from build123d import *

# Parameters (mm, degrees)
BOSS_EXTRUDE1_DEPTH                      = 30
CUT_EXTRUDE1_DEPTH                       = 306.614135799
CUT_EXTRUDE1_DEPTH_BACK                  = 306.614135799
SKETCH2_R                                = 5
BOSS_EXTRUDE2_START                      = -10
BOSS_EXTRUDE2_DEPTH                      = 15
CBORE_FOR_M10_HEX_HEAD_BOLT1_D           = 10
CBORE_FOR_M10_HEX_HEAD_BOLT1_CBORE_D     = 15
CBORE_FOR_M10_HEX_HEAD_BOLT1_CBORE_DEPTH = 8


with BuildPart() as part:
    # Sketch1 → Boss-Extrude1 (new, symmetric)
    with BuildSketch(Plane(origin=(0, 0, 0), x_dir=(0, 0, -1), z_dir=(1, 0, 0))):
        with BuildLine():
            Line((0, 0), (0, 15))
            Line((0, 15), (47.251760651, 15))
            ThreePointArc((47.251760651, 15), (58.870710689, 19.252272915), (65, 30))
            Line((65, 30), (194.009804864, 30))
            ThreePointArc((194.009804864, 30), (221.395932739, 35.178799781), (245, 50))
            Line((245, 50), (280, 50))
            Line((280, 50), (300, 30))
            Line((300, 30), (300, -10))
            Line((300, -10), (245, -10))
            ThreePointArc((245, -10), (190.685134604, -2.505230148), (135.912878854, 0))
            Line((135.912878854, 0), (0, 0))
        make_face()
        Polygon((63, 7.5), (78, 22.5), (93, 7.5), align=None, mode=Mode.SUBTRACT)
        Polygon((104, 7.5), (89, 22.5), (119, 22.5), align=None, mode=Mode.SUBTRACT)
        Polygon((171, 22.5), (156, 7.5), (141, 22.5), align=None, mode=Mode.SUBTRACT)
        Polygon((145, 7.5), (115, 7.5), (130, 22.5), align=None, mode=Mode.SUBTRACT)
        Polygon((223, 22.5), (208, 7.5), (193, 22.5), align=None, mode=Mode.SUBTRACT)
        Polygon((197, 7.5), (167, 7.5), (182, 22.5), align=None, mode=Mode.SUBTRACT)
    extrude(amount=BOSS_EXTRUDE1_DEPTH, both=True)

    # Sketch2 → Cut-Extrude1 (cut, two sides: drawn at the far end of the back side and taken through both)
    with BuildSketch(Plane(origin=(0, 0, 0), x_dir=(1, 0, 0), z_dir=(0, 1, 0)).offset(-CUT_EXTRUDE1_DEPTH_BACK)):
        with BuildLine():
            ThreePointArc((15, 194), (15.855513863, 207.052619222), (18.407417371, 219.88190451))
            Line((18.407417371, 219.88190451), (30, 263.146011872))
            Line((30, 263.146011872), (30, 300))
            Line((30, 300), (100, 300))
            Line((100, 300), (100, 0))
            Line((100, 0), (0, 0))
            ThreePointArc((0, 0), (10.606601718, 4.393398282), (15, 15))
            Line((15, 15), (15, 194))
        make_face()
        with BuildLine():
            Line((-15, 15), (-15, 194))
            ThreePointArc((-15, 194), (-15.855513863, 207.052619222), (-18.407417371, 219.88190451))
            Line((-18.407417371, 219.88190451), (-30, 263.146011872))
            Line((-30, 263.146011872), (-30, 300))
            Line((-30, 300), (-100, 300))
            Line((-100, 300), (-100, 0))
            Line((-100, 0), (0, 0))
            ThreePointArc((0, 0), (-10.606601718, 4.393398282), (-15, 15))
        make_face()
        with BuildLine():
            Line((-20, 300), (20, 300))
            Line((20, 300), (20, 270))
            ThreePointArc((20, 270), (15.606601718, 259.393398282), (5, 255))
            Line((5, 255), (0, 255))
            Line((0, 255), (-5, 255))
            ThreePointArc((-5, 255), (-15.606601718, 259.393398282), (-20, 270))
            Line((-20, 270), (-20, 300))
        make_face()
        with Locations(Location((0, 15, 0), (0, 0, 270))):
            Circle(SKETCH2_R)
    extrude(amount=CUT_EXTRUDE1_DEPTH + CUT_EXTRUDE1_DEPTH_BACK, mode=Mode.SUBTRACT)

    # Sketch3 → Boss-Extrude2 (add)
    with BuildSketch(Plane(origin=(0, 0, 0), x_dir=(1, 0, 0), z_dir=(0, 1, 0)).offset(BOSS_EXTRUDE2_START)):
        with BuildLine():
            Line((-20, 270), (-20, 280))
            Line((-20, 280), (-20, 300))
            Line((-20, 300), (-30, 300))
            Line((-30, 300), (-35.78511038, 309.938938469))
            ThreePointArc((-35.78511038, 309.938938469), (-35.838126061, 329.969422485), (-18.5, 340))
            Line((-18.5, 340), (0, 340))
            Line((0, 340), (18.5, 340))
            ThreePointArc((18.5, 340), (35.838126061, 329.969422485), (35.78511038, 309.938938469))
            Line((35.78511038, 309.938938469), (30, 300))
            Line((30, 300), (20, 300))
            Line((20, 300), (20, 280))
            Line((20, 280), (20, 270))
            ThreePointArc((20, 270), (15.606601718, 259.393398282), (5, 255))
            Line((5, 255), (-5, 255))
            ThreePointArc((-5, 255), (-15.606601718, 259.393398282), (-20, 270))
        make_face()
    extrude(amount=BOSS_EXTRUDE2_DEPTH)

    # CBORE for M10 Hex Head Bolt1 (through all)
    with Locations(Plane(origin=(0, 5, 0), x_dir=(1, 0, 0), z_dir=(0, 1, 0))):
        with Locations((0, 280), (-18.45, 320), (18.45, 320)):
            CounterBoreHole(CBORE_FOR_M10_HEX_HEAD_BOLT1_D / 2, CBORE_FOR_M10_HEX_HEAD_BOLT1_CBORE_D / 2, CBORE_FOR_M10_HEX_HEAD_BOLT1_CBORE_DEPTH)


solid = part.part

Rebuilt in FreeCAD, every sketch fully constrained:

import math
import FreeCAD as App
import Part
import Sketcher

V = App.Vector
Q = App.Units.Quantity

doc = App.newDocument("Part")
body = doc.addObject("PartDesign::Body", "Body")

# Sketch on YZ plane
sketch1 = body.newObject("Sketcher::SketchObject", "Sketch")
sketch1.AttachmentSupport = (doc.getObject("YZ_Plane"), [""])
sketch1.MapMode = "FlatFace"
sketch1.addGeometry([
    Part.LineSegment(V(15, 0, 0), V(0, 0, 0)),  # 0
    Part.LineSegment(V(0, 0, 0), V(0, -136, 0)),  # 1
    Part.ArcOfCircle(Part.Circle(V(-600, -136, 0), V(0, 0, 1), 600), math.radians(-10.48), math.radians(0)),  # 2
    Part.LineSegment(V(-10, -245, 0), V(-10, -300, 0)),  # 3
    Part.LineSegment(V(-10, -300, 0), V(30, -300, 0)),  # 4
    Part.LineSegment(V(30, -300, 0), V(50, -280, 0)),  # 5
    Part.LineSegment(V(50, -280, 0), V(50, -245, 0)),  # 6
    Part.ArcOfCircle(Part.Circle(V(105, -194, 0), V(0, 0, 1), 75), math.radians(180), math.radians(223)),  # 7
    Part.LineSegment(V(30, -194, 0), V(30, -65, 0)),  # 8
    Part.ArcOfCircle(Part.Circle(V(33, -47, 0), V(0, 0, 1), 18), math.radians(-180), math.radians(-100)),  # 9
    Part.LineSegment(V(15, -47, 0), V(15, 0, 0)),  # 10
    Part.LineSegment(V(22, -223, 0), V(8, -208, 0)),  # 11
    Part.LineSegment(V(8, -208, 0), V(22, -193, 0)),  # 12
    Part.LineSegment(V(22, -193, 0), V(22, -223, 0)),  # 13
    Part.LineSegment(V(8, -197, 0), V(8, -167, 0)),  # 14
    Part.LineSegment(V(8, -167, 0), V(22, -182, 0)),  # 15
    Part.LineSegment(V(22, -182, 0), V(8, -197, 0)),  # 16
    Part.LineSegment(V(22, -171, 0), V(8, -156, 0)),  # 17
    Part.LineSegment(V(8, -156, 0), V(22, -141, 0)),  # 18
    Part.LineSegment(V(22, -141, 0), V(22, -171, 0)),  # 19
    Part.LineSegment(V(8, -145, 0), V(8, -115, 0)),  # 20
    Part.LineSegment(V(8, -115, 0), V(22, -130, 0)),  # 21
    Part.LineSegment(V(22, -130, 0), V(8, -145, 0)),  # 22
    Part.LineSegment(V(8, -104, 0), V(22, -89, 0)),  # 23
    Part.LineSegment(V(22, -89, 0), V(22, -119, 0)),  # 24
    Part.LineSegment(V(22, -119, 0), V(8, -104, 0)),  # 25
    Part.LineSegment(V(8, -63, 0), V(22, -78, 0)),  # 26
    Part.LineSegment(V(22, -78, 0), V(8, -93, 0)),  # 27
    Part.LineSegment(V(8, -93, 0), V(8, -63, 0)),  # 28
], False)
sketch1.addConstraint([
    Sketcher.Constraint("Coincident", 0, 2, 1, 1),
    Sketcher.Constraint("Tangent", 1, 2, 2, 2),
    Sketcher.Constraint("Coincident", 2, 1, 3, 1),
    Sketcher.Constraint("Coincident", 3, 2, 4, 1),
    Sketcher.Constraint("Coincident", 4, 2, 5, 1),
    Sketcher.Constraint("Coincident", 5, 2, 6, 1),
    Sketcher.Constraint("Coincident", 6, 2, 7, 2),
    Sketcher.Constraint("Tangent", 7, 1, 8, 1),
    Sketcher.Constraint("Coincident", 8, 2, 9, 2),
    Sketcher.Constraint("Tangent", 9, 1, 10, 1),
    Sketcher.Constraint("Coincident", 10, 2, 0, 1),
    Sketcher.Constraint("Coincident", 11, 2, 12, 1),
    Sketcher.Constraint("Coincident", 12, 2, 13, 1),
    Sketcher.Constraint("Coincident", 13, 2, 11, 1),
    Sketcher.Constraint("Coincident", 14, 2, 15, 1),
    Sketcher.Constraint("Coincident", 15, 2, 16, 1),
    Sketcher.Constraint("Coincident", 16, 2, 14, 1),
    Sketcher.Constraint("Coincident", 17, 2, 18, 1),
    Sketcher.Constraint("Coincident", 18, 2, 19, 1),
    Sketcher.Constraint("Coincident", 19, 2, 17, 1),
    Sketcher.Constraint("Coincident", 20, 2, 21, 1),
    Sketcher.Constraint("Coincident", 21, 2, 22, 1),
    Sketcher.Constraint("Coincident", 22, 2, 20, 1),
    Sketcher.Constraint("Coincident", 23, 2, 24, 1),
    Sketcher.Constraint("Coincident", 24, 2, 25, 1),
    Sketcher.Constraint("Coincident", 25, 2, 23, 1),
    Sketcher.Constraint("Coincident", 26, 2, 27, 1),
    Sketcher.Constraint("Coincident", 27, 2, 28, 1),
    Sketcher.Constraint("Coincident", 28, 2, 26, 1),
    Sketcher.Constraint("Horizontal", 0),
    Sketcher.Constraint("Vertical", 1),
    Sketcher.Constraint("Vertical", 3),
    Sketcher.Constraint("Horizontal", 4),
    Sketcher.Constraint("Vertical", 6),
    Sketcher.Constraint("Vertical", 8),
    Sketcher.Constraint("Vertical", 10),
    Sketcher.Constraint("Vertical", 13),
    Sketcher.Constraint("Vertical", 14),
    Sketcher.Constraint("Vertical", 19),
    Sketcher.Constraint("Vertical", 20),
    Sketcher.Constraint("Vertical", 24),
    Sketcher.Constraint("Vertical", 28),
    Sketcher.Constraint("Coincident", 0, 2, -1, 1),
    Sketcher.Constraint("Perpendicular", 5, 11),
    Sketcher.Constraint("Perpendicular", 11, 12),
    Sketcher.Constraint("Perpendicular", 12, 15),
    Sketcher.Constraint("Perpendicular", 15, 16),
    Sketcher.Constraint("Perpendicular", 16, 17),
    Sketcher.Constraint("Perpendicular", 17, 18),
    Sketcher.Constraint("Perpendicular", 18, 21),
    Sketcher.Constraint("Perpendicular", 21, 22),
    Sketcher.Constraint("Parallel", 22, 23),
    Sketcher.Constraint("Perpendicular", 23, 25),
    Sketcher.Constraint("Parallel", 25, 26),
    Sketcher.Constraint("Perpendicular", 26, 27),
    Sketcher.Constraint("Horizontal", 2, 1, 6, 2),
    Sketcher.Constraint("Vertical", 4, 2, 7, 1),
    Sketcher.Constraint("Vertical", 11, 2, 14, 2),
    Sketcher.Constraint("Vertical", 13, 2, 15, 2),
    Sketcher.Constraint("Vertical", 16, 2, 17, 2),
    Sketcher.Constraint("Vertical", 15, 2, 18, 2),
    Sketcher.Constraint("Vertical", 17, 2, 20, 2),
    Sketcher.Constraint("Vertical", 19, 2, 21, 2),
    Sketcher.Constraint("Vertical", 21, 2, 23, 2),
    Sketcher.Constraint("Vertical", 22, 2, 25, 2),
    Sketcher.Constraint("Vertical", 24, 2, 26, 2),
    Sketcher.Constraint("Vertical", 25, 2, 27, 2),
    Sketcher.Constraint("Equal", 11, 12),
    Sketcher.Constraint("Radius", 2, 600.0),
    Sketcher.Constraint("Radius", 7, 75.0),
    Sketcher.Constraint("Radius", 9, 18.0),
    Sketcher.Constraint("DistanceX", 0, 2, 0, 1, 15.0),
    Sketcher.Constraint("DistanceX", 4, 1, 4, 2, 40.0),
    Sketcher.Constraint("DistanceY", 3, 2, 3, 1, 55.0),
    Sketcher.Constraint("DistanceY", 6, 1, 6, 2, 35.0),
    Sketcher.Constraint("DistanceY", 13, 2, 13, 1, 30.0),
    Sketcher.Constraint("DistanceX", -1, 1, 7, 3, 105.0),
    Sketcher.Constraint("DistanceY", 3, 2, -1, 1, 300.0),
    Sketcher.Constraint("DistanceY", 8, 2, -1, 1, 65.0),
    Sketcher.Constraint("DistanceY", 11, 2, -1, 1, 208.0),
    Sketcher.Constraint("DistanceY", 14, 2, -1, 1, 167.0),
    Sketcher.Constraint("DistanceY", 17, 2, -1, 1, 156.0),
    Sketcher.Constraint("DistanceY", 20, 2, -1, 1, 115.0),
    Sketcher.Constraint("DistanceY", 23, 2, -1, 1, 89.0),
    Sketcher.Constraint("DistanceY", 26, 2, -1, 1, 78.0),
    Sketcher.Constraint("DistanceX", -1, 1, 11, 2, 7.5),
])
pad1 = body.newObject("PartDesign::Pad", "Pad")
pad1.Profile = sketch1
pad1.Length = 60
pad1.Midplane = True

# Sketch on XZ plane
sketch2 = body.newObject("Sketcher::SketchObject", "Sketch001")
sketch2.AttachmentSupport = (doc.getObject("XZ_Plane"), [""])
sketch2.MapMode = "FlatFace"
sketch2.addGeometry([
    Part.ArcOfCircle(Part.Circle(V(115, -194, 0), V(0, 0, 1), 100), math.radians(-180), math.radians(-165)),  # 0
    Part.LineSegment(V(15, -194, 0), V(15, -15, 0)),  # 1
    Part.ArcOfCircle(Part.Circle(V(0, -15, 0), V(0, 0, 1), 15), math.radians(0), math.radians(90)),  # 2
    Part.LineSegment(V(0, 0, 0), V(100, 0, 0)),  # 3
    Part.LineSegment(V(100, 0, 0), V(100, -300, 0)),  # 4
    Part.LineSegment(V(100, -300, 0), V(30, -300, 0)),  # 5
    Part.LineSegment(V(30, -300, 0), V(30, -263, 0)),  # 6
    Part.LineSegment(V(30, -263, 0), V(18, -220, 0)),  # 7
    Part.LineSegment(V(-15, -15, 0), V(-15, -194, 0)),  # 8
    Part.ArcOfCircle(Part.Circle(V(-115, -194, 0), V(0, 0, 1), 100), math.radians(-15), math.radians(0)),  # 9
    Part.LineSegment(V(-18, -220, 0), V(-30, -263, 0)),  # 10
    Part.LineSegment(V(-30, -263, 0), V(-30, -300, 0)),  # 11
    Part.LineSegment(V(-30, -300, 0), V(-100, -300, 0)),  # 12
    Part.LineSegment(V(-100, -300, 0), V(-100, 0, 0)),  # 13
    Part.LineSegment(V(-100, 0, 0), V(0, 0, 0)),  # 14
    Part.ArcOfCircle(Part.Circle(V(0, -15, 0), V(0, 0, 1), 15), math.radians(90), math.radians(180)),  # 15
    Part.LineSegment(V(20, -300, 0), V(-20, -300, 0)),  # 16
    Part.LineSegment(V(-20, -300, 0), V(-20, -270, 0)),  # 17
    Part.ArcOfCircle(Part.Circle(V(-5, -270, 0), V(0, 0, 1), 15), math.radians(90), math.radians(180)),  # 18
    Part.LineSegment(V(-5, -255, 0), V(5, -255, 0)),  # 19
    Part.ArcOfCircle(Part.Circle(V(5, -270, 0), V(0, 0, 1), 15), math.radians(0), math.radians(90)),  # 20
    Part.LineSegment(V(20, -270, 0), V(20, -300, 0)),  # 21
    Part.Circle(V(0, -15, 0), V(0, 0, 1), 5),  # 22
], False)
sketch2.addConstraint([
    Sketcher.Constraint("Tangent", 0, 1, 1, 1),
    Sketcher.Constraint("Tangent", 1, 2, 2, 1),
    Sketcher.Constraint("Tangent", 2, 2, 3, 1),
    Sketcher.Constraint("Coincident", 3, 2, 4, 1),
    Sketcher.Constraint("Coincident", 4, 2, 5, 1),
    Sketcher.Constraint("Coincident", 5, 2, 6, 1),
    Sketcher.Constraint("Coincident", 6, 2, 7, 1),
    Sketcher.Constraint("Tangent", 7, 2, 0, 2),
    Sketcher.Constraint("Tangent", 8, 2, 9, 2),
    Sketcher.Constraint("Tangent", 9, 1, 10, 1),
    Sketcher.Constraint("Coincident", 10, 2, 11, 1),
    Sketcher.Constraint("Coincident", 11, 2, 12, 1),
    Sketcher.Constraint("Coincident", 12, 2, 13, 1),
    Sketcher.Constraint("Coincident", 13, 2, 14, 1),
    Sketcher.Constraint("Tangent", 14, 2, 15, 1),
    Sketcher.Constraint("Tangent", 15, 2, 8, 1),
    Sketcher.Constraint("Coincident", 16, 2, 17, 1),
    Sketcher.Constraint("Tangent", 17, 2, 18, 2),
    Sketcher.Constraint("Tangent", 18, 1, 19, 1),
    Sketcher.Constraint("Tangent", 19, 2, 20, 2),
    Sketcher.Constraint("Tangent", 20, 1, 21, 1),
    Sketcher.Constraint("Coincident", 21, 2, 16, 1),
    Sketcher.Constraint("Vertical", 1),
    Sketcher.Constraint("Horizontal", 3),
    Sketcher.Constraint("Vertical", 4),
    Sketcher.Constraint("Horizontal", 5),
    Sketcher.Constraint("Vertical", 6),
    Sketcher.Constraint("Vertical", 8),
    Sketcher.Constraint("Vertical", 11),
    Sketcher.Constraint("Horizontal", 12),
    Sketcher.Constraint("Vertical", 13),
    Sketcher.Constraint("Horizontal", 14),
    Sketcher.Constraint("Horizontal", 16),
    Sketcher.Constraint("Vertical", 17),
    Sketcher.Constraint("Horizontal", 19),
    Sketcher.Constraint("Vertical", 21),
    Sketcher.Constraint("Coincident", 2, 2, -1, 1),
    Sketcher.Constraint("Coincident", 14, 2, -1, 1),
    Sketcher.Constraint("Coincident", 22, 3, 2, 3),
    Sketcher.Constraint("Equal", 0, 9),
    Sketcher.Constraint("Equal", 2, 15),
    Sketcher.Constraint("Equal", 15, 18),
    Sketcher.Constraint("Equal", 18, 20),
    Sketcher.Constraint("Symmetric", 7, 2, 9, 1, -2),
    Sketcher.Constraint("Symmetric", 5, 2, 11, 2, -2),
    Sketcher.Constraint("Horizontal", 12, 2, 16, 2),
    Sketcher.Constraint("Equal", 5, 12),
    Sketcher.Constraint("Diameter", 22, 10.0),
    Sketcher.Constraint("Radius", 0, 100.0),
    Sketcher.Constraint("Radius", 2, 15.0),
    Sketcher.Constraint("DistanceX", 3, 1, 3, 2, 100.0),
    Sketcher.Constraint("DistanceX", 5, 2, 5, 1, 70.0),
    Sketcher.Constraint("DistanceX", 16, 2, 16, 1, 40.0),
    Sketcher.Constraint("DistanceY", 1, 1, 1, 2, 179.0),
    Sketcher.Constraint("DistanceY", 4, 2, 4, 1, 300.0),
    Sketcher.Constraint("DistanceY", 17, 1, 17, 2, 30.0),
    Sketcher.Constraint("Angle", 7, Q("105 deg")),
    Sketcher.Constraint("DistanceX", 18, 3, -1, 1, 5.0),
])
pocket1 = body.newObject("PartDesign::Pocket", "Pocket")
pocket1.Profile = sketch2
pocket1.Type = "ThroughAll"
pocket1.Midplane = True

# Sketch on XZ plane
sketch3 = body.newObject("Sketcher::SketchObject", "Sketch002")
sketch3.AttachmentSupport = (doc.getObject("XZ_Plane"), [""])
sketch3.MapMode = "FlatFace"
sketch3.AttachmentOffset = App.Placement(V(0, 0, 10), App.Rotation())
sketch3.addGeometry([
    Part.LineSegment(V(-20, -300, 0), V(-20, -270, 0)),  # 0
    Part.ArcOfCircle(Part.Circle(V(-5, -270, 0), V(0, 0, 1), 15), math.radians(90), math.radians(180)),  # 1
    Part.LineSegment(V(-5, -255, 0), V(5, -255, 0)),  # 2
    Part.ArcOfCircle(Part.Circle(V(5, -270, 0), V(0, 0, 1), 15), math.radians(0), math.radians(90)),  # 3
    Part.LineSegment(V(20, -270, 0), V(20, -300, 0)),  # 4
    Part.LineSegment(V(20, -300, 0), V(30, -300, 0)),  # 5
    Part.LineSegment(V(30, -300, 0), V(36, -310, 0)),  # 6
    Part.ArcOfCircle(Part.Circle(V(18, -320, 0), V(0, 0, 1), 20), math.radians(-90), math.radians(30)),  # 7
    Part.LineSegment(V(18, -340, 0), V(-18, -340, 0)),  # 8
    Part.ArcOfCircle(Part.Circle(V(-18, -320, 0), V(0, 0, 1), 20), math.radians(150), math.radians(270)),  # 9
    Part.LineSegment(V(-36, -310, 0), V(-30, -300, 0)),  # 10
    Part.LineSegment(V(-30, -300, 0), V(-20, -300, 0)),  # 11
], False)
sketch3.addConstraint([
    Sketcher.Constraint("Tangent", 0, 2, 1, 2),
    Sketcher.Constraint("Tangent", 1, 1, 2, 1),
    Sketcher.Constraint("Tangent", 2, 2, 3, 2),
    Sketcher.Constraint("Tangent", 3, 1, 4, 1),
    Sketcher.Constraint("Coincident", 4, 2, 5, 1),
    Sketcher.Constraint("Coincident", 5, 2, 6, 1),
    Sketcher.Constraint("Tangent", 6, 2, 7, 2),
    Sketcher.Constraint("Tangent", 7, 1, 8, 1),
    Sketcher.Constraint("Tangent", 8, 2, 9, 2),
    Sketcher.Constraint("Tangent", 9, 1, 10, 1),
    Sketcher.Constraint("Coincident", 10, 2, 11, 1),
    Sketcher.Constraint("Coincident", 11, 2, 0, 1),
    Sketcher.Constraint("Vertical", 0),
    Sketcher.Constraint("Horizontal", 2),
    Sketcher.Constraint("Vertical", 4),
    Sketcher.Constraint("Horizontal", 5),
    Sketcher.Constraint("Horizontal", 8),
    Sketcher.Constraint("Horizontal", 11),
    Sketcher.Constraint("Equal", 1, 3),
    Sketcher.Constraint("Equal", 7, 9),
    Sketcher.Constraint("Symmetric", 6, 2, 9, 1, -2),
    Sketcher.Constraint("Symmetric", 4, 2, 11, 2, -2),
    Sketcher.Constraint("Equal", 2, 5),
    Sketcher.Constraint("Radius", 1, 15.0),
    Sketcher.Constraint("Radius", 7, 20.0),
    Sketcher.Constraint("DistanceX", 2, 1, 2, 2, 10.0),
    Sketcher.Constraint("DistanceX", 8, 2, 8, 1, 37.0),
    Sketcher.Constraint("DistanceY", 0, 1, 0, 2, 30.0),
    Sketcher.Constraint("DistanceY", 1, 3, -1, 1, 270.0),
    Sketcher.Constraint("DistanceY", 7, 3, -1, 1, 320.0),
])
pad2 = body.newObject("PartDesign::Pad", "Pad001")
pad2.Profile = sketch3
pad2.Length = 15
pad2.Reversed = True

# Sketch on XZ plane
sketch4 = body.newObject("Sketcher::SketchObject", "Sketch003")
sketch4.AttachmentSupport = (doc.getObject("XZ_Plane"), [""])
sketch4.MapMode = "FlatFace"
sketch4.AttachmentOffset = App.Placement(V(0, 0, -5), App.Rotation())
sketch4.addGeometry([
    Part.Circle(V(0, -280, 0), V(0, 0, 1), 5),
    Part.Circle(V(-18, -320, 0), V(0, 0, 1), 5),
    Part.Circle(V(18, -320, 0), V(0, 0, 1), 5),
], False)
sketch4.addConstraint([
    Sketcher.Constraint("Equal", 0, 1),
    Sketcher.Constraint("Equal", 1, 2),
    Sketcher.Constraint("Symmetric", 1, 3, 2, 3, -2),
    Sketcher.Constraint("PointOnObject", 0, 3, -2),
    Sketcher.Constraint("Diameter", 0, 10.0),
    Sketcher.Constraint("DistanceY", 0, 3, -1, 1, 280.0),
    Sketcher.Constraint("DistanceY", 1, 3, -1, 1, 320.0),
    Sketcher.Constraint("DistanceX", 1, 3, 2, 3, 36.9),
])
doc.recompute()
hole = body.newObject("PartDesign::Hole", "Hole")
hole.Profile = sketch4
hole.ThreadType = "None"
hole.Diameter = 10
hole.DepthType = "ThroughAll"
hole.HoleCutType = "Counterbore"
hole.HoleCutDiameter = 15
hole.HoleCutDepth = 8
hole.Reversed = True

doc.recompute()
